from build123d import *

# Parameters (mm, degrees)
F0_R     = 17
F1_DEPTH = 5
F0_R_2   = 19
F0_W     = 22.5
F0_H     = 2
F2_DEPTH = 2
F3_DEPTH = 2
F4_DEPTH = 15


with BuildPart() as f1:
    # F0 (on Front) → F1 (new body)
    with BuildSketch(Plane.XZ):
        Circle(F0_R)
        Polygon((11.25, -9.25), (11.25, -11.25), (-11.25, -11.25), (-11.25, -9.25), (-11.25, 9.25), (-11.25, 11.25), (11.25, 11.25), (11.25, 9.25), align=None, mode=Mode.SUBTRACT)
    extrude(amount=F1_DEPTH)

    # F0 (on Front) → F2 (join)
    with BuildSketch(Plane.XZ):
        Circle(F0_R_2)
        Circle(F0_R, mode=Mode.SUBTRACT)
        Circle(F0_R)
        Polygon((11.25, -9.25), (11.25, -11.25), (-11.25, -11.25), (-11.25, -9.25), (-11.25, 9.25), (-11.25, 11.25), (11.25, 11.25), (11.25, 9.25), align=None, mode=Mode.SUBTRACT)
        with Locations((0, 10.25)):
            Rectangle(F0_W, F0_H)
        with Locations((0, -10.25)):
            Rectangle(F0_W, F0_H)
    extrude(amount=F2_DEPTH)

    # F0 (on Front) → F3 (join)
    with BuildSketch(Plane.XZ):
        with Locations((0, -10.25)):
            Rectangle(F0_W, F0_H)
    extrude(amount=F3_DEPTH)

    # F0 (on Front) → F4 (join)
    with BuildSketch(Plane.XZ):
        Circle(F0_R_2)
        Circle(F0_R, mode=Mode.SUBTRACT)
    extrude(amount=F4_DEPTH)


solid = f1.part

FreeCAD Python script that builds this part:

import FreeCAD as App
import Part
import Sketcher
from FreeCAD import Vector

doc = App.newDocument("Part")
body = doc.addObject("PartDesign::Body", "Body")

sketch1 = doc.addObject("Sketcher::SketchObject", "Sketch")
body.addObject(sketch1)
sketch1.AttachmentSupport = (doc.XZ_Plane, [""])
sketch1.MapMode = "FlatFace"
sketch1.addGeometry(Part.Circle(Vector(0, 0, 0), Vector(0, 0, 1), 17), False)
sketch1.addGeometry(Part.LineSegment(Vector(11, 11, 0), Vector(11, -11, 0)), False)
sketch1.addGeometry(Part.LineSegment(Vector(11, -11, 0), Vector(-11, -11, 0)), False)
sketch1.addGeometry(Part.LineSegment(Vector(-11, -11, 0), Vector(-11, 11, 0)), False)
sketch1.addGeometry(Part.LineSegment(Vector(-11, 11, 0), Vector(11, 11, 0)), False)
sketch1.addConstraint(Sketcher.Constraint("Coincident", 1, 2, 2, 1))
sketch1.addConstraint(Sketcher.Constraint("Coincident", 2, 2, 3, 1))
sketch1.addConstraint(Sketcher.Constraint("Coincident", 3, 2, 4, 1))
sketch1.addConstraint(Sketcher.Constraint("Coincident", 4, 2, 1, 1))
sketch1.addConstraint(Sketcher.Constraint("Vertical", 1))
sketch1.addConstraint(Sketcher.Constraint("Horizontal", 2))
sketch1.addConstraint(Sketcher.Constraint("Vertical", 3))
sketch1.addConstraint(Sketcher.Constraint("Horizontal", 4))
sketch1.addConstraint(Sketcher.Constraint("Coincident", 0, 3, -1, 1))
sketch1.addConstraint(Sketcher.Constraint("Symmetric", 1, 2, 3, 2, -1, 1))
sketch1.addConstraint(Sketcher.Constraint("Equal", 4, 1))
sketch1.addConstraint(Sketcher.Constraint("Diameter", 0, 34.0))
sketch1.addConstraint(Sketcher.Constraint("DistanceX", 2, 2, 2, 1, 22.5))
pad1 = doc.addObject("PartDesign::Pad", "Pad")
body.addObject(pad1)
pad1.Profile = sketch1
pad1.Length = 5

sketch2 = doc.addObject("Sketcher::SketchObject", "Sketch001")
body.addObject(sketch2)
sketch2.AttachmentSupport = (doc.XZ_Plane, [""])
sketch2.MapMode = "FlatFace"
sketch2.addGeometry(Part.Circle(Vector(0, 0, 0), Vector(0, 0, 1), 19), False)
sketch2.addGeometry(Part.LineSegment(Vector(11, 9, 0), Vector(11, -9, 0)), False)
sketch2.addGeometry(Part.LineSegment(Vector(11, -9, 0), Vector(-11, -9, 0)), False)
sketch2.addGeometry(Part.LineSegment(Vector(-11, -9, 0), Vector(-11, 9, 0)), False)
sketch2.addGeometry(Part.LineSegment(Vector(-11, 9, 0), Vector(11, 9, 0)), False)
sketch2.addConstraint(Sketcher.Constraint("Coincident", 1, 2, 2, 1))
sketch2.addConstraint(Sketcher.Constraint("Coincident", 2, 2, 3, 1))
sketch2.addConstraint(Sketcher.Constraint("Coincident", 3, 2, 4, 1))
sketch2.addConstraint(Sketcher.Constraint("Coincident", 4, 2, 1, 1))
sketch2.addConstraint(Sketcher.Constraint("Vertical", 1))
sketch2.addConstraint(Sketcher.Constraint("Horizontal", 2))
sketch2.addConstraint(Sketcher.Constraint("Vertical", 3))
sketch2.addConstraint(Sketcher.Constraint("Horizontal", 4))
sketch2.addConstraint(Sketcher.Constraint("Coincident", 0, 3, -1, 1))
sketch2.addConstraint(Sketcher.Constraint("Symmetric", 1, 2, 3, 2, -1, 1))
sketch2.addConstraint(Sketcher.Constraint("Diameter", 0, 38.0))
sketch2.addConstraint(Sketcher.Constraint("DistanceX", 2, 2, 2, 1, 22.5))
sketch2.addConstraint(Sketcher.Constraint("DistanceY", 1, 2, 1, 1, 18.5))
pad2 = doc.addObject("PartDesign::Pad", "Pad001")
body.addObject(pad2)
pad2.Profile = sketch2
pad2.Length = 2

sketch3 = doc.addObject("Sketcher::SketchObject", "Sketch002")
body.addObject(sketch3)
sketch3.AttachmentSupport = (doc.XZ_Plane, [""])
sketch3.MapMode = "FlatFace"
sketch3.addGeometry(Part.LineSegment(Vector(-11.2, -9.2, 0), Vector(-11.2, -11.2, 0)), False)
sketch3.addGeometry(Part.LineSegment(Vector(-11.2, -11.2, 0), Vector(11.2, -11.2, 0)), False)
sketch3.addGeometry(Part.LineSegment(Vector(11.2, -11.2, 0), Vector(11.2, -9.2, 0)), False)
sketch3.addGeometry(Part.LineSegment(Vector(11.2, -9.2, 0), Vector(-11.2, -9.2, 0)), False)
sketch3.addConstraint(Sketcher.Constraint("Coincident", 0, 2, 1, 1))
sketch3.addConstraint(Sketcher.Constraint("Coincident", 1, 2, 2, 1))
sketch3.addConstraint(Sketcher.Constraint("Coincident", 2, 2, 3, 1))
sketch3.addConstraint(Sketcher.Constraint("Coincident", 3, 2, 0, 1))
sketch3.addConstraint(Sketcher.Constraint("Vertical", 0))
sketch3.addConstraint(Sketcher.Constraint("Horizontal", 1))
sketch3.addConstraint(Sketcher.Constraint("Vertical", 2))
sketch3.addConstraint(Sketcher.Constraint("Horizontal", 3))
sketch3.addConstraint(Sketcher.Constraint("DistanceY", 0, 2, 0, 1, 2.0))
sketch3.addConstraint(Sketcher.Constraint("DistanceX", 1, 1, 1, 2, 22.5))
sketch3.addConstraint(Sketcher.Constraint("DistanceX", 0, 2, -1, 1, 11.25))
sketch3.addConstraint(Sketcher.Constraint("DistanceY", 0, 2, -1, 1, 11.25))
pad3 = doc.addObject("PartDesign::Pad", "Pad002")
body.addObject(pad3)
pad3.Profile = sketch3
pad3.Length = 2

sketch4 = doc.addObject("Sketcher::SketchObject", "Sketch003")
body.addObject(sketch4)
sketch4.AttachmentSupport = (doc.XZ_Plane, [""])
sketch4.MapMode = "FlatFace"
sketch4.addGeometry(Part.Circle(Vector(0, 0, 0), Vector(0, 0, 1), 19), False)
sketch4.addGeometry(Part.Circle(Vector(0, 0, 0), Vector(0, 0, 1), 17), False)
sketch4.addConstraint(Sketcher.Constraint("Coincident", 0, 3, -1, 1))
sketch4.addConstraint(Sketcher.Constraint("Coincident", 1, 3, -1, 1))
sketch4.addConstraint(Sketcher.Constraint("Diameter", 0, 38.0))
sketch4.addConstraint(Sketcher.Constraint("Diameter", 1, 34.0))
pad4 = doc.addObject("PartDesign::Pad", "Pad003")
body.addObject(pad4)
pad4.Profile = sketch4
pad4.Length = 15

doc.recompute()
